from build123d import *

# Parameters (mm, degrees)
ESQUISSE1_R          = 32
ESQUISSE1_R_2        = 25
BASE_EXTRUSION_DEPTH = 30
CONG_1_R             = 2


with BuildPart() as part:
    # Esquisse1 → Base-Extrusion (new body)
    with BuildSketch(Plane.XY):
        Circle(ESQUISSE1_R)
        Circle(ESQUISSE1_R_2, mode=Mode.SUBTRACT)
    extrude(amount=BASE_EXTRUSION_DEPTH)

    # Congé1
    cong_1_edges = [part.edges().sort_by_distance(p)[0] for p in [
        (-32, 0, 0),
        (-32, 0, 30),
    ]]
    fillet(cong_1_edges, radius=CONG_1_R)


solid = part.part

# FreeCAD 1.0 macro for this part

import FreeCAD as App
import Part
import Sketcher
from FreeCAD import Vector
Q = App.Units.Quantity


def edges_at(feature, points):
    """Names of the edges that pass closest to the given points."""
    edges = feature.Shape.Edges
    near = lambda p: min(range(len(edges)), key=lambda i: edges[i].distToShape(Part.Vertex(*p))[0])
    return sorted({f"Edge{near(p) + 1}" for p in points})

doc = App.newDocument("Part")
body = doc.addObject("PartDesign::Body", "Body")

# Sketch on XY plane
sketch1 = doc.addObject("Sketcher::SketchObject", "Sketch")
body.addObject(sketch1)
sketch1.AttachmentSupport = (doc.XY_Plane, [""])
sketch1.MapMode = "FlatFace"
sketch1.addGeometry([
    Part.Circle(Vector(0, 0, 0), Vector(0, 0, 1), 32),
    Part.Circle(Vector(0, 0, 0), Vector(0, 0, 1), 25),
], False)
sketch1.addConstraint([
    Sketcher.Constraint("Coincident", 0, 3, -1, 1),
    Sketcher.Constraint("Coincident", 1, 3, -1, 1),
    Sketcher.Constraint("Diameter", 0, Q("64 mm")),
    Sketcher.Constraint("Diameter", 1, Q("50 mm")),
])
pad1 = doc.addObject("PartDesign::Pad", "Pad")
body.addObject(pad1)
pad1.Profile = sketch1
pad1.Length = 30
doc.recompute()

fillet = doc.addObject("PartDesign::Fillet", "Fillet")
body.addObject(fillet)
fillet.Base = (pad1, edges_at(pad1, [(-32, 0, 0), (-32, 0, 30)]))
fillet.Radius = 2

doc.recompute()
